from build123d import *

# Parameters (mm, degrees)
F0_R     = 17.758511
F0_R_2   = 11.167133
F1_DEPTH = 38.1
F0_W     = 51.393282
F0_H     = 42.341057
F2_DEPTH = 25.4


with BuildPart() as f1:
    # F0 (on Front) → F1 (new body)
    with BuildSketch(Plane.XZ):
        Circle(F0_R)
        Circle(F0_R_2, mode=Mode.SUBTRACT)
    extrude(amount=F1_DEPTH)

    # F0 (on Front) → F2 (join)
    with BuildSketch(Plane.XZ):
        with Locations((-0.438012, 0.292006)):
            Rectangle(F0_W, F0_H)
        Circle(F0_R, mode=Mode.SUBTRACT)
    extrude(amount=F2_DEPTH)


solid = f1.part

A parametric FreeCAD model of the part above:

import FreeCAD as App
import Part
import Sketcher
Q = App.Units.Quantity


def add_polygon(sketch, points):
    """Adds a closed chain of lines whose ends are joined by coincident constraints."""
    first, n = sketch.GeometryCount, len(points)
    for a, b in zip(points, points[1:] + points[:1]):
        sketch.addGeometry(Part.LineSegment(App.Vector(*a, 0), App.Vector(*b, 0)), False)
    for i in range(n):
        sketch.addConstraint(Sketcher.Constraint("Coincident", first + i, 2, first + (i + 1) % n, 1))

doc = App.newDocument("Part")
body = doc.addObject("PartDesign::Body", "Body")

# Sketch on XZ plane
sketch1 = doc.addObject("Sketcher::SketchObject", "Sketch")
body.addObject(sketch1)
sketch1.AttachmentSupport = (doc.XZ_Plane, [""])
sketch1.MapMode = "FlatFace"
sketch1.addGeometry(Part.Circle(App.Vector(0, 0, 0), App.Vector(0, 0, 1), 17.758511), False)
sketch1.addGeometry(Part.Circle(App.Vector(0, 0, 0), App.Vector(0, 0, 1), 11.167133), False)
sketch1.addConstraint(Sketcher.Constraint("Coincident", 0, 3, -1, 1))
sketch1.addConstraint(Sketcher.Constraint("Coincident", 1, 3, -1, 1))
sketch1.addConstraint(Sketcher.Constraint("Diameter", 0, 35.517022))
sketch1.addConstraint(Sketcher.Constraint("Diameter", 1, 22.334266))
pad1 = doc.addObject("PartDesign::Pad", "Pad")
body.addObject(pad1)
pad1.Profile = sketch1
pad1.Length = Q("1.5 in")

# Sketch on XZ plane
sketch2 = doc.addObject("Sketcher::SketchObject", "Sketch001")
body.addObject(sketch2)
sketch2.AttachmentSupport = (doc.XZ_Plane, [""])
sketch2.MapMode = "FlatFace"
add_polygon(sketch2, [(-26.134653, 21.462535), (-26.134653, -20.878522), (25.258629, -20.878522), (25.258629, 21.462535)])  # lines 0-3
sketch2.addGeometry(Part.Circle(App.Vector(0, 0, 0), App.Vector(0, 0, 1), 17.758511), False)  # 4
sketch2.addConstraint(Sketcher.Constraint("Vertical", 0))
sketch2.addConstraint(Sketcher.Constraint("Horizontal", 1))
sketch2.addConstraint(Sketcher.Constraint("Vertical", 2))
sketch2.addConstraint(Sketcher.Constraint("Horizontal", 3))
sketch2.addConstraint(Sketcher.Constraint("Coincident", 4, 3, -1, 1))
sketch2.addConstraint(Sketcher.Constraint("Diameter", 4, 35.517022))
sketch2.addConstraint(Sketcher.Constraint("DistanceX", 1, 1, 1, 2, 51.393282))
sketch2.addConstraint(Sketcher.Constraint("DistanceY", 0, 2, 0, 1, 42.341057))
sketch2.addConstraint(Sketcher.Constraint("DistanceX", -1, 1, 1, 2, 25.258629))
sketch2.addConstraint(Sketcher.Constraint("DistanceY", 0, 2, -1, 1, 20.878522))
pad2 = doc.addObject("PartDesign::Pad", "Pad001")
body.addObject(pad2)
pad2.Profile = sketch2
pad2.Length = Q("1 in")

doc.recompute()
